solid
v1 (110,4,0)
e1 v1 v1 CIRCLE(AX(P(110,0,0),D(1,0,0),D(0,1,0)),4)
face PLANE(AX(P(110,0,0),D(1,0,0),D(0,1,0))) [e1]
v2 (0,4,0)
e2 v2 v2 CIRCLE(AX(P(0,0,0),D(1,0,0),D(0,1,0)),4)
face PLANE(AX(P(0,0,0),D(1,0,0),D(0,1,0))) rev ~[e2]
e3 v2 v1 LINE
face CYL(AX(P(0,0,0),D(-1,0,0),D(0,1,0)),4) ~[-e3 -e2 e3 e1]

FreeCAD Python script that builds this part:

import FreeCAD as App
import Part
import Sketcher

doc = App.newDocument("Part")
body = doc.addObject("PartDesign::Body", "Body")

sketch1 = body.newObject("Sketcher::SketchObject", "Sketch")
sketch1.AttachmentSupport = (doc.getObject("YZ_Plane"), [""])
sketch1.MapMode = "FlatFace"
sketch1.addGeometry(Part.Circle(App.Vector(0, 0, 0), App.Vector(0, 0, 1), 4), False)
sketch1.addConstraint([
    Sketcher.Constraint("Coincident", 0, 3, -1, 1),
    Sketcher.Constraint("Diameter", 0, 8.0),
])
pad1 = body.newObject("PartDesign::Pad", "Pad")
pad1.Profile = sketch1
pad1.Length = 110

doc.recompute()
